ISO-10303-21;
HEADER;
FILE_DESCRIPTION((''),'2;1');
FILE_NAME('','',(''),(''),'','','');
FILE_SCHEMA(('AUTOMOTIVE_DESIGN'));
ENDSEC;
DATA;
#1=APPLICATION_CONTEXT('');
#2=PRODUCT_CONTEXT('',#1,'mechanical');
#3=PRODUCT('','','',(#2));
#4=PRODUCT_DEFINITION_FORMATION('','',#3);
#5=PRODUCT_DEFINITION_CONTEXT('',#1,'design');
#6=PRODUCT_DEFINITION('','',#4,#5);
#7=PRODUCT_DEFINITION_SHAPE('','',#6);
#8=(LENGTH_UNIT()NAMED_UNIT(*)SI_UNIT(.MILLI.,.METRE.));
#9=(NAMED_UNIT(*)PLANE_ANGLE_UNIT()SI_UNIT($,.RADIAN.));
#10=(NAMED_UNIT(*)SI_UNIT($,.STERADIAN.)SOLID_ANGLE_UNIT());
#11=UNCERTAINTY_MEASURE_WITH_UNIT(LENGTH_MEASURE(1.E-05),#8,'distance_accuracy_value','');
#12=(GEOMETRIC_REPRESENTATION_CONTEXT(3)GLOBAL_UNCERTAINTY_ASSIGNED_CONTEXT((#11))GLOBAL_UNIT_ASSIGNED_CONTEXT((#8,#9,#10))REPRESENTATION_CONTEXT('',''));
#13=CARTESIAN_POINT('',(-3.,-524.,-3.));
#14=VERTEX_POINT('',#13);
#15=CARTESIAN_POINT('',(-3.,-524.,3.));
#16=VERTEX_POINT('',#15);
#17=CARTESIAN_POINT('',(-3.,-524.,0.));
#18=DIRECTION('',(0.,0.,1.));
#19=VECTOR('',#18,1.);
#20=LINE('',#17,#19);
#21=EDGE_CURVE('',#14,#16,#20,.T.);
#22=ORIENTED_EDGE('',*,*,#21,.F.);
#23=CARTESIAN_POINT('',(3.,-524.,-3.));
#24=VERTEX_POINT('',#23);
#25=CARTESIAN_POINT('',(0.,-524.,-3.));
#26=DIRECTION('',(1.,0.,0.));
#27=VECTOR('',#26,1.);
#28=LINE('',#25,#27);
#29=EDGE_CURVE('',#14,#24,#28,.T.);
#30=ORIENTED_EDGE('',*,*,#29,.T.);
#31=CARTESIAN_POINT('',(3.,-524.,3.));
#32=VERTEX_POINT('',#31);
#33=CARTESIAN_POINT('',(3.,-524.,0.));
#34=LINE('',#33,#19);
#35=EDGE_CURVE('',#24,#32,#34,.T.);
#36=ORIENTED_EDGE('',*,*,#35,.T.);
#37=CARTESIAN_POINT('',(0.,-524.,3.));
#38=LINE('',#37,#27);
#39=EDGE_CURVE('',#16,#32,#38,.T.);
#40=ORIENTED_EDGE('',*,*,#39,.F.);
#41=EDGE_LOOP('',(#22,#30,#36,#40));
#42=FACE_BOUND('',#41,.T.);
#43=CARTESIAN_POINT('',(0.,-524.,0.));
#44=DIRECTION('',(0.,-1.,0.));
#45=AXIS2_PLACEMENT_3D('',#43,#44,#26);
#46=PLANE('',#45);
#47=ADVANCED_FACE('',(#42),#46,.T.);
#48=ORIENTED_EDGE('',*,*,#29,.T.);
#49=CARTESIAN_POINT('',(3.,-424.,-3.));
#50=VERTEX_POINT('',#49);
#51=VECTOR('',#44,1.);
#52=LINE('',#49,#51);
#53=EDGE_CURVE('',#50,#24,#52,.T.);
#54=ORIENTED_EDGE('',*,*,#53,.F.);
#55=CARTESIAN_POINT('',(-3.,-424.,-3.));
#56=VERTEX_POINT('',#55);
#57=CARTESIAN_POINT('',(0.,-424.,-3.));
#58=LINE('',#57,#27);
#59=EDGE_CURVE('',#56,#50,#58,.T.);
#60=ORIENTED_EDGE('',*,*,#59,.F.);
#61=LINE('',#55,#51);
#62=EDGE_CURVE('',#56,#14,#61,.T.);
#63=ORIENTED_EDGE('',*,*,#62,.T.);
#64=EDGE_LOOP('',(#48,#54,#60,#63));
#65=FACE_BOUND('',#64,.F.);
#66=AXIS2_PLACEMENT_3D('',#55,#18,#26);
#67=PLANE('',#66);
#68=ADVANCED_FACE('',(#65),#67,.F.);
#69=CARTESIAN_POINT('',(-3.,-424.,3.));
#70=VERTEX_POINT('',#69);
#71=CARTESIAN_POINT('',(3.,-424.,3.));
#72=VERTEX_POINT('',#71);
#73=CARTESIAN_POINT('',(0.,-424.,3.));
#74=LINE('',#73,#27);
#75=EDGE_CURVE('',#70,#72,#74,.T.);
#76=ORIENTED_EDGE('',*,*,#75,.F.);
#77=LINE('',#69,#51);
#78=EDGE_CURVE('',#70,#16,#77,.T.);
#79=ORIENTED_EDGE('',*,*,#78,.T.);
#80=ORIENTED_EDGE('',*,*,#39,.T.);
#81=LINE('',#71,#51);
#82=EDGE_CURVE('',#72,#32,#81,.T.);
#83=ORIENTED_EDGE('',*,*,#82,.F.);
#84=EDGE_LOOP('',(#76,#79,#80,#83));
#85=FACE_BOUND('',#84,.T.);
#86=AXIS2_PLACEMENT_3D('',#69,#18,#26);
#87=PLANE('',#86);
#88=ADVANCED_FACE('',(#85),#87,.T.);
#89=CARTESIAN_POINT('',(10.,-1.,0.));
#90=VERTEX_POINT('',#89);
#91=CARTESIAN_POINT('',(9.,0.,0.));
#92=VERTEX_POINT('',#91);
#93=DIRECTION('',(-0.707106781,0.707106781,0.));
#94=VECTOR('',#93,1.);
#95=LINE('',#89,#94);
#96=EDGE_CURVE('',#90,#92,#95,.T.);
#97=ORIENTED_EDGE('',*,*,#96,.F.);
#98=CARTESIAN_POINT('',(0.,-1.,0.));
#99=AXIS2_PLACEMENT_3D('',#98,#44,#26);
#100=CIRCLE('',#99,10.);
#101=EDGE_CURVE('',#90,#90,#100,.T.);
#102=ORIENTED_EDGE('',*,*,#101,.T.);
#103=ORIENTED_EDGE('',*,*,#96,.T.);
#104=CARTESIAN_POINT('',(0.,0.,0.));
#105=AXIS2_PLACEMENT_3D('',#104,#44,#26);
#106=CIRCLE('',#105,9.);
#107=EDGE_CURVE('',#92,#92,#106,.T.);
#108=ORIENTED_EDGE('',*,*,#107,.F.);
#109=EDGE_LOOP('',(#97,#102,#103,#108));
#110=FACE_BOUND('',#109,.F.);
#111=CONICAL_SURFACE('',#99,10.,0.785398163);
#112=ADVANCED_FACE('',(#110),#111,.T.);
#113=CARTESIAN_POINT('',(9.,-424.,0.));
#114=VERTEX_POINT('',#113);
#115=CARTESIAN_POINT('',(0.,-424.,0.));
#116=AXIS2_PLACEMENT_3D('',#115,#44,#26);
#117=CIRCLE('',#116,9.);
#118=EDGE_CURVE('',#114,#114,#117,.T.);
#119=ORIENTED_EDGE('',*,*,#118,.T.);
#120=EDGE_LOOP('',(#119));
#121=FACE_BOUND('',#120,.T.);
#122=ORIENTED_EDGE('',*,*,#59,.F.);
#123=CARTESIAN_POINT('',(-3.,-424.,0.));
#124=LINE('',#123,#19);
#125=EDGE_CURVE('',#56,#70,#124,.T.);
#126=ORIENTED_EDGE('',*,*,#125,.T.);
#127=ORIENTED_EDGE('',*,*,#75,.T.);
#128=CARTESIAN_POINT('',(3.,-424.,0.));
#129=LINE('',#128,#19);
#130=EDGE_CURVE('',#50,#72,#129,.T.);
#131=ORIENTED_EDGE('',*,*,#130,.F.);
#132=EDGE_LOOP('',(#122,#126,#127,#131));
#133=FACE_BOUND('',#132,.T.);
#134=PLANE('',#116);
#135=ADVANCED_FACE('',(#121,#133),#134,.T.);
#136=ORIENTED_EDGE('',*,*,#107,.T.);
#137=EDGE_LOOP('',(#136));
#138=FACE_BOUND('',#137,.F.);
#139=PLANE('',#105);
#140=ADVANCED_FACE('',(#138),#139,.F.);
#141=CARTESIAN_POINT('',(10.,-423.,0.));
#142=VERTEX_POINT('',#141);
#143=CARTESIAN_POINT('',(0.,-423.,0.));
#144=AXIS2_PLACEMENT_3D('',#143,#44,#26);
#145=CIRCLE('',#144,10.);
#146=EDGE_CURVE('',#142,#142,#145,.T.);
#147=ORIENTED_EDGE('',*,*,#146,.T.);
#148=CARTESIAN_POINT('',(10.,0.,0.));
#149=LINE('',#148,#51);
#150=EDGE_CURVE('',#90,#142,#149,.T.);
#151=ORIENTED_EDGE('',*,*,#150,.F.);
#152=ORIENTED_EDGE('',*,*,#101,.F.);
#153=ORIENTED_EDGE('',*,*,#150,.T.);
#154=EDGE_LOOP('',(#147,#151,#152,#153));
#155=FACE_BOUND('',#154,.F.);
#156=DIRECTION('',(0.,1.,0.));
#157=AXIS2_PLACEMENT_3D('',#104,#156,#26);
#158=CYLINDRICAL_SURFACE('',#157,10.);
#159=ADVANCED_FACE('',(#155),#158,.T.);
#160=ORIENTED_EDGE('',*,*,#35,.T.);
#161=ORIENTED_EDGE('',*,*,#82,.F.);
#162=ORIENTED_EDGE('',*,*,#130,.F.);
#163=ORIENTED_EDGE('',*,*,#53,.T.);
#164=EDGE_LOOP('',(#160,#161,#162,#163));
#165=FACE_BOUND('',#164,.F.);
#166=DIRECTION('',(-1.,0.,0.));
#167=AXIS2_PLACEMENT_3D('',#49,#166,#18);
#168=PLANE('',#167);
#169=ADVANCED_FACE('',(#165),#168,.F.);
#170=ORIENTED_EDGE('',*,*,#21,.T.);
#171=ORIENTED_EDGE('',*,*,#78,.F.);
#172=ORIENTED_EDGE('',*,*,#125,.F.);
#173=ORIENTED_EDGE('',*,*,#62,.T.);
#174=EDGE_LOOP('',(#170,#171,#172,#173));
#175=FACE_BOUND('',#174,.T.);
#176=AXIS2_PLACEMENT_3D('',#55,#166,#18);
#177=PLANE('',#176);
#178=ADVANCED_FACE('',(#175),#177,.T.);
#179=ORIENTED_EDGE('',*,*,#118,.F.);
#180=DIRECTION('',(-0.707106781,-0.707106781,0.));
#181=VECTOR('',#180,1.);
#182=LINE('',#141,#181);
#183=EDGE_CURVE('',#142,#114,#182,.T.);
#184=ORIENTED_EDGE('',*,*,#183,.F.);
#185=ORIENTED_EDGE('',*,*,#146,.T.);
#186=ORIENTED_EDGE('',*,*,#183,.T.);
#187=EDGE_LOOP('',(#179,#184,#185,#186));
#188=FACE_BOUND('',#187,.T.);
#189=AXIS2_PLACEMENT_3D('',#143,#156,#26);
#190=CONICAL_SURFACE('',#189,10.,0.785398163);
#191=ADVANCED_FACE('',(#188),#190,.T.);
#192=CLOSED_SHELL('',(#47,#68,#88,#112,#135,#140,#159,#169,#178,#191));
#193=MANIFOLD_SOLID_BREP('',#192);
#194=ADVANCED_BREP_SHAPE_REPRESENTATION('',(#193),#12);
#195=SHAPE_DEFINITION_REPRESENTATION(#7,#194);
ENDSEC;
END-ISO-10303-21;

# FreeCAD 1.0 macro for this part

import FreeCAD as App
import Part
import Sketcher

V = App.Vector


def edges_at(feature, points):
    """Names of the edges that pass closest to the given points."""
    edges = feature.Shape.Edges
    near = lambda p: min(range(len(edges)), key=lambda i: edges[i].distToShape(Part.Vertex(*p))[0])
    return sorted({f"Edge{near(p) + 1}" for p in points})

doc = App.newDocument("Part")
params = doc.addObject("Spreadsheet::Sheet", "Params")
for row, (alias, value) in enumerate([
    ("sketch1_diameter", "20 mm"),
    ("pad1_length", "424 mm"),
    ("chamfer_size", "1 mm"),
    ("sketch2_width", "6 mm"),
    ("pad2_length", "100 mm"),
], start=1):
    params.set(f"A{row}", alias)
    params.set(f"B{row}", "=" + value)
    params.setAlias(f"B{row}", alias)

body = doc.addObject("PartDesign::Body", "Body")

sketch1 = body.newObject("Sketcher::SketchObject", "Sketch")
sketch1.AttachmentSupport = (doc.getObject("XZ_Plane"), [""])
sketch1.MapMode = "FlatFace"
sketch1.addGeometry(Part.Circle(V(0, 0, 0), V(0, 0, 1), 10), False)
sketch1.addConstraint(Sketcher.Constraint("Coincident", 0, 3, -1, 1))
sketch1.addConstraint(Sketcher.Constraint("Diameter", 0, 20.0))
sketch1.setExpression("Constraints[1]", "Params.sketch1_diameter")
pad1 = body.newObject("PartDesign::Pad", "Pad")
pad1.Profile = sketch1
pad1.setExpression("Length", "Params.pad1_length")
doc.recompute()

chamfer = body.newObject("PartDesign::Chamfer", "Chamfer")
chamfer.Base = (pad1, edges_at(pad1, [(-10, 0, 0), (-10, -424, 0)]))
chamfer.setExpression("Size", "Params.chamfer_size")

sketch2 = body.newObject("Sketcher::SketchObject", "Sketch001")
sketch2.AttachmentSupport = (doc.getObject("XZ_Plane"), [""])
sketch2.MapMode = "FlatFace"
sketch2.AttachmentOffset = App.Placement(V(0, 0, 424), App.Rotation())
sketch2.addGeometry(Part.LineSegment(V(-3, 3, 0), V(-3, -3, 0)), False)
sketch2.addGeometry(Part.LineSegment(V(-3, -3, 0), V(3, -3, 0)), False)
sketch2.addGeometry(Part.LineSegment(V(3, -3, 0), V(3, 3, 0)), False)
sketch2.addGeometry(Part.LineSegment(V(3, 3, 0), V(-3, 3, 0)), False)
sketch2.addConstraint(Sketcher.Constraint("Coincident", 0, 2, 1, 1))
sketch2.addConstraint(Sketcher.Constraint("Coincident", 1, 2, 2, 1))
sketch2.addConstraint(Sketcher.Constraint("Coincident", 2, 2, 3, 1))
sketch2.addConstraint(Sketcher.Constraint("Coincident", 3, 2, 0, 1))
sketch2.addConstraint(Sketcher.Constraint("Vertical", 0))
sketch2.addConstraint(Sketcher.Constraint("Horizontal", 1))
sketch2.addConstraint(Sketcher.Constraint("Vertical", 2))
sketch2.addConstraint(Sketcher.Constraint("Horizontal", 3))
sketch2.addConstraint(Sketcher.Constraint("Symmetric", 0, 2, 2, 2, -1, 1))
sketch2.addConstraint(Sketcher.Constraint("Equal", 3, 0))
sketch2.addConstraint(Sketcher.Constraint("DistanceX", 1, 1, 1, 2, 6.0))
sketch2.setExpression("Constraints[10]", "Params.sketch2_width")
pad2 = body.newObject("PartDesign::Pad", "Pad001")
pad2.Profile = sketch2
pad2.setExpression("Length", "Params.pad2_length")

doc.recompute()
